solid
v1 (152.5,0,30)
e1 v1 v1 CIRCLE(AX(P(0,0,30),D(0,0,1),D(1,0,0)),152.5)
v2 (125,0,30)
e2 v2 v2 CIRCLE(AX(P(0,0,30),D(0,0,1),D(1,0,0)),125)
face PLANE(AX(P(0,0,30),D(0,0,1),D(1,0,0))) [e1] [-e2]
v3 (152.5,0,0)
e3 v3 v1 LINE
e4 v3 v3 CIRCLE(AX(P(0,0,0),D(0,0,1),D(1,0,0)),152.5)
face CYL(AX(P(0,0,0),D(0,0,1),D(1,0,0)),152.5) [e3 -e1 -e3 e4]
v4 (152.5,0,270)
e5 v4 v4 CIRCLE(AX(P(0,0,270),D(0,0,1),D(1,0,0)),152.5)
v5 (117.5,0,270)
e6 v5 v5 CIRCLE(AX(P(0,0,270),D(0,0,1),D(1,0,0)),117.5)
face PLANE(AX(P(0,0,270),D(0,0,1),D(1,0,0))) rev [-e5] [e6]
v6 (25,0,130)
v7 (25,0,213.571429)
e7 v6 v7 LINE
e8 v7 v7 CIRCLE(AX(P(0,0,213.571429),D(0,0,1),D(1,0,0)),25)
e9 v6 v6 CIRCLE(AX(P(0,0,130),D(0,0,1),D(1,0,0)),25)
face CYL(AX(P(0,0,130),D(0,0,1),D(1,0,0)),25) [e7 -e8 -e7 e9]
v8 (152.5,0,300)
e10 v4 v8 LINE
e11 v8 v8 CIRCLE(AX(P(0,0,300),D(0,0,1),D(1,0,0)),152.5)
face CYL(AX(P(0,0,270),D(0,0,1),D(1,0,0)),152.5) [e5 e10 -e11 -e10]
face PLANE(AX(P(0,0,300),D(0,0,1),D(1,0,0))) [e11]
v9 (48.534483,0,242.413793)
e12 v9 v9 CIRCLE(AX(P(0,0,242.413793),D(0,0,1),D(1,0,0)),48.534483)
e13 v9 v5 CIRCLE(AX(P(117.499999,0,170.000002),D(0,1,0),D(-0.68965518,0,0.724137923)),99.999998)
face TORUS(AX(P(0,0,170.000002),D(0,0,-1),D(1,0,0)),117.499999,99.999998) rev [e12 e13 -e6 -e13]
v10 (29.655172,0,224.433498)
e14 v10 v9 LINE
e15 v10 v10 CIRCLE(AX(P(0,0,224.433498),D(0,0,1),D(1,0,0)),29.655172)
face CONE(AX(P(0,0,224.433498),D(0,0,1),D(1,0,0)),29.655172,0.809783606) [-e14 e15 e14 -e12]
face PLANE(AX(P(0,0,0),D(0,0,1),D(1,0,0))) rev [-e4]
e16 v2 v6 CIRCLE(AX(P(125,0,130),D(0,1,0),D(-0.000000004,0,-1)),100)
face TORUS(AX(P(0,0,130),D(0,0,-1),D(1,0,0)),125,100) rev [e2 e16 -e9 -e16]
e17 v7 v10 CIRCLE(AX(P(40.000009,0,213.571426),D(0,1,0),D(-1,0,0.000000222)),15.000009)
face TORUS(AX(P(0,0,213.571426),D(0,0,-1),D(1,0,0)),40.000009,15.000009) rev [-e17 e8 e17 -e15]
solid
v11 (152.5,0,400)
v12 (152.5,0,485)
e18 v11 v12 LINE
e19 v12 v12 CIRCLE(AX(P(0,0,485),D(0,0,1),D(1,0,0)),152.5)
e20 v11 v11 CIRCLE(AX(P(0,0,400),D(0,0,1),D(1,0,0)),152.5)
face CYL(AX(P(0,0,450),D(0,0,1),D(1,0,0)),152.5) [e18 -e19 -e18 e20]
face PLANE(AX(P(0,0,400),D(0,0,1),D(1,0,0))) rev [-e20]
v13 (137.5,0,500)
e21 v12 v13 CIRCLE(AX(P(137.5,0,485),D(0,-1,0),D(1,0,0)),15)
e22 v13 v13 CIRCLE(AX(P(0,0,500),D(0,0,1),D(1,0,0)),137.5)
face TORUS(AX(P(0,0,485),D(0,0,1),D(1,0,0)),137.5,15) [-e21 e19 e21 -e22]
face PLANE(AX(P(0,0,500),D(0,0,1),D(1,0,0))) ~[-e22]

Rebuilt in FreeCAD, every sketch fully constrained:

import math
import FreeCAD as App
import Part
import Sketcher

V = App.Vector
Q = App.Units.Quantity


def edges_at(feature, points):
    """Names of the edges that pass closest to the given points."""
    edges = feature.Shape.Edges
    near = lambda p: min(range(len(edges)), key=lambda i: edges[i].distToShape(Part.Vertex(*p))[0])
    return sorted({f"Edge{near(p) + 1}" for p in points})

doc = App.newDocument("Part")
body = doc.addObject("PartDesign::Body", "Body")
body.AllowCompound = True

# Sketch on XZ plane
sketch1 = body.newObject("Sketcher::SketchObject", "Sketch")
sketch1.AttachmentSupport = (doc.getObject("XZ_Plane"), [""])
sketch1.MapMode = "FlatFace"
sketch1.addGeometry([
    Part.LineSegment(V(0, 300, 0), V(0, 0, 0)),  # 0
    Part.LineSegment(V(0, 0, 0), V(152.5, 0, 0)),  # 1
    Part.LineSegment(V(152.5, 0, 0), V(152.5, 30, 0)),  # 2
    Part.LineSegment(V(152.5, 30, 0), V(125, 30, 0)),  # 3
    Part.ArcOfCircle(Part.Circle(V(125, 130, 0), V(0, 0, 1), 100), math.radians(-180), math.radians(-90)),  # 4
    Part.LineSegment(V(25, 130, 0), V(25, 213.571429, 0)),  # 5
    Part.ArcOfCircle(Part.Circle(V(40.000009, 213.571426, 0), V(0, 0, 1), 15.000009), math.radians(133.602836), math.radians(179.999987)),  # 6
    Part.LineSegment(V(29.655172, 224.433498, 0), V(48.534483, 242.413793, 0)),  # 7
    Part.ArcOfCircle(Part.Circle(V(117.499999, 170.000002, 0), V(0, 0, 1), 99.999998), math.radians(90), math.radians(133.60282)),  # 8
    Part.LineSegment(V(117.5, 270, 0), V(152.5, 270, 0)),  # 9
    Part.LineSegment(V(152.5, 270, 0), V(152.5, 300, 0)),  # 10
    Part.LineSegment(V(152.5, 300, 0), V(0, 300, 0)),  # 11
    Part.LineSegment(V(0, 500, 0), V(0, 400, 0)),  # 12
    Part.LineSegment(V(0, 400, 0), V(152.5, 400, 0)),  # 13
    Part.LineSegment(V(152.5, 400, 0), V(152.5, 500, 0)),  # 14
    Part.LineSegment(V(152.5, 500, 0), V(0, 500, 0)),  # 15
], False)
sketch1.addConstraint([
    Sketcher.Constraint("Coincident", 0, 2, 1, 1),
    Sketcher.Constraint("Coincident", 1, 2, 2, 1),
    Sketcher.Constraint("Coincident", 2, 2, 3, 1),
    Sketcher.Constraint("Tangent", 3, 2, 4, 2),
    Sketcher.Constraint("Tangent", 4, 1, 5, 1),
    Sketcher.Constraint("Tangent", 5, 2, 6, 2),
    Sketcher.Constraint("Tangent", 6, 1, 7, 1),
    Sketcher.Constraint("Tangent", 7, 2, 8, 2),
    Sketcher.Constraint("Tangent", 8, 1, 9, 1),
    Sketcher.Constraint("Coincident", 9, 2, 10, 1),
    Sketcher.Constraint("Coincident", 10, 2, 11, 1),
    Sketcher.Constraint("Coincident", 11, 2, 0, 1),
    Sketcher.Constraint("Coincident", 12, 2, 13, 1),
    Sketcher.Constraint("Coincident", 13, 2, 14, 1),
    Sketcher.Constraint("Coincident", 14, 2, 15, 1),
    Sketcher.Constraint("Coincident", 15, 2, 12, 1),
    Sketcher.Constraint("Vertical", 0),
    Sketcher.Constraint("Horizontal", 1),
    Sketcher.Constraint("Vertical", 2),
    Sketcher.Constraint("Horizontal", 3),
    Sketcher.Constraint("Vertical", 5),
    Sketcher.Constraint("Horizontal", 9),
    Sketcher.Constraint("Vertical", 10),
    Sketcher.Constraint("Horizontal", 11),
    Sketcher.Constraint("Vertical", 12),
    Sketcher.Constraint("Horizontal", 13),
    Sketcher.Constraint("Vertical", 14),
    Sketcher.Constraint("Horizontal", 15),
    Sketcher.Constraint("Coincident", 0, 2, -1, 1),
    Sketcher.Constraint("PointOnObject", 12, 2, -2),
    Sketcher.Constraint("Vertical", 2, 2, 9, 2),
    Sketcher.Constraint("Vertical", 10, 2, 13, 2),
    Sketcher.Constraint("Equal", 2, 10),
    Sketcher.Constraint("Radius", 4, Q("100 mm")),
    Sketcher.Constraint("DistanceX", 9, 1, 9, 2, Q("35 mm")),
    Sketcher.Constraint("DistanceY", 0, 2, 0, 1, Q("300 mm")),
    Sketcher.Constraint("DistanceY", 2, 1, 2, 2, Q("30 mm")),
    Sketcher.Constraint("DistanceY", 12, 2, 12, 1, Q("100 mm")),
    Sketcher.Constraint("DistanceX", 1, 1, 1, 2, Q("152.5 mm")),
    Sketcher.Constraint("DistanceX", 3, 2, 3, 1, Q("27.5 mm")),
    Sketcher.Constraint("DistanceY", -1, 1, 12, 2, Q("400 mm")),
    Sketcher.Constraint("DistanceY", 4, 3, 8, 3, Q("40.000002 mm")),
    Sketcher.Constraint("Radius", 6, Q("15.000009 mm")),
    Sketcher.Constraint("DistanceY", 5, 1, 5, 2, Q("83.571429 mm")),
])
revolution = body.newObject("PartDesign::Revolution", "Revolution")
revolution.Profile = sketch1
revolution.ReferenceAxis = (sketch1, ["V_Axis"])
revolution.Angle = 360
doc.recompute()

fillet = body.newObject("PartDesign::Fillet", "Fillet")
fillet.Base = (revolution, edges_at(revolution, [(-152.5, 0, 500)]))
fillet.Radius = 15

doc.recompute()
